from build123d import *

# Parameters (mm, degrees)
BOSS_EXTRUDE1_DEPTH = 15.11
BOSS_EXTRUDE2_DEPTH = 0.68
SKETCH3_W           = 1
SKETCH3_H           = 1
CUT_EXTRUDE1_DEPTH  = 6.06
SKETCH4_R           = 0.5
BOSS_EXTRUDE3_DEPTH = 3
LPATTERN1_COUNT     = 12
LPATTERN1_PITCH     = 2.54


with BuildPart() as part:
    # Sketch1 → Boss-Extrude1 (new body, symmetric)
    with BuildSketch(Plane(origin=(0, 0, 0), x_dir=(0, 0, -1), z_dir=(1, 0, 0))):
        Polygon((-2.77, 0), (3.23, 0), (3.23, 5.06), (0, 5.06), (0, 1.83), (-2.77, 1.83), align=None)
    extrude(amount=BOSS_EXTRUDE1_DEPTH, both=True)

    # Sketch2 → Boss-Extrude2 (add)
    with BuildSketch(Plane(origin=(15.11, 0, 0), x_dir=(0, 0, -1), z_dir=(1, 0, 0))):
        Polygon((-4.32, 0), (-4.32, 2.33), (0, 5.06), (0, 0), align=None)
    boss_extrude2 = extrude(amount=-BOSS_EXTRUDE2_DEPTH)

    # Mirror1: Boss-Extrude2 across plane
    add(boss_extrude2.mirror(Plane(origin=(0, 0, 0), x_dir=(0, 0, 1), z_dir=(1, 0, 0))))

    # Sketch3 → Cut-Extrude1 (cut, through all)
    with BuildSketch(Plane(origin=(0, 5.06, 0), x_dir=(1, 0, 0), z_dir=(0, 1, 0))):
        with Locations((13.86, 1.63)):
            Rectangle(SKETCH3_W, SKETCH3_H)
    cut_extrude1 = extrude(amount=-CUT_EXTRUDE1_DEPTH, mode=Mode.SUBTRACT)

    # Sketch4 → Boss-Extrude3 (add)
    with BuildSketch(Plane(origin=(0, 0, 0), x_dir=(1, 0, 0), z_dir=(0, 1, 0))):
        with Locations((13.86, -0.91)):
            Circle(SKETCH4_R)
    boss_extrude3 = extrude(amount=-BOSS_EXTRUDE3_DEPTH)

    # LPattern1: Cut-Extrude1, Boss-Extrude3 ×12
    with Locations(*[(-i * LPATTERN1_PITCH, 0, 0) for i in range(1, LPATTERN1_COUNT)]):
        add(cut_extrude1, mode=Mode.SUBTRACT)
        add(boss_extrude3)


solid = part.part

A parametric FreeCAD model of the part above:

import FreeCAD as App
import Part
import Sketcher
from FreeCAD import Vector
Q = App.Units.Quantity

doc = App.newDocument("Part")
params = doc.addObject("Spreadsheet::Sheet", "Params")
for row, (alias, value) in enumerate([
    ("sketch1_height", "6 mm"),
    ("sketch1_width", "5.06 mm"),
    ("sketch1_width2", "3.23 mm"),
    ("pad1_length", "30.22 mm"),
    ("sketch2_width", "2.33 mm"),
    ("sketch2_width2", "5.06 mm"),
    ("sketch2_height", "4.32 mm"),
    ("pad2_length", "0.68 mm"),
    ("sketch3_width", "1 mm"),
    ("sketch4_diameter", "1 mm"),
    ("pad3_length", "3 mm"),
    ("linearpattern_pitch", "2.54 mm"),
], start=1):
    params.set(f"A{row}", alias)
    params.set(f"B{row}", "=" + value)
    params.setAlias(f"B{row}", alias)

body = doc.addObject("PartDesign::Body", "Body")

# Sketch on YZ plane
sketch1 = body.newObject("Sketcher::SketchObject", "Sketch")
sketch1.AttachmentSupport = (doc.getObject("YZ_Plane"), [""])
sketch1.MapMode = "FlatFace"
sketch1.addGeometry([
    Part.LineSegment(Vector(0, 2.77, 0), Vector(0, -3.23, 0)),  # 0
    Part.LineSegment(Vector(0, -3.23, 0), Vector(5.06, -3.23, 0)),  # 1
    Part.LineSegment(Vector(5.06, -3.23, 0), Vector(5.06, 0, 0)),  # 2
    Part.LineSegment(Vector(5.06, 0, 0), Vector(1.83, 0, 0)),  # 3
    Part.LineSegment(Vector(1.83, 0, 0), Vector(1.83, 2.77, 0)),  # 4
    Part.LineSegment(Vector(1.83, 2.77, 0), Vector(0, 2.77, 0)),  # 5
], False)
sketch1.addConstraint([
    Sketcher.Constraint("Coincident", 0, 2, 1, 1),
    Sketcher.Constraint("Coincident", 1, 2, 2, 1),
    Sketcher.Constraint("Coincident", 2, 2, 3, 1),
    Sketcher.Constraint("Coincident", 3, 2, 4, 1),
    Sketcher.Constraint("Coincident", 4, 2, 5, 1),
    Sketcher.Constraint("Coincident", 5, 2, 0, 1),
    Sketcher.Constraint("Vertical", 0),
    Sketcher.Constraint("Horizontal", 1),
    Sketcher.Constraint("Vertical", 2),
    Sketcher.Constraint("Horizontal", 3),
    Sketcher.Constraint("Vertical", 4),
    Sketcher.Constraint("Horizontal", 5),
    Sketcher.Constraint("PointOnObject", 0, 2, -2),
    Sketcher.Constraint("PointOnObject", 2, 2, -1),
    Sketcher.Constraint("Equal", 3, 2),
    Sketcher.Constraint("DistanceY", 0, 2, 0, 1, Q("6 mm")),
    Sketcher.Constraint("DistanceX", 1, 1, 1, 2, Q("5.06 mm")),
    Sketcher.Constraint("DistanceX", 3, 2, 3, 1, Q("3.23 mm")),
])
sketch1.setExpression("Constraints[15]", "Params.sketch1_height")
sketch1.setExpression("Constraints[16]", "Params.sketch1_width")
sketch1.setExpression("Constraints[17]", "Params.sketch1_width2")
pad1 = body.newObject("PartDesign::Pad", "Pad")
pad1.Profile = sketch1
pad1.setExpression("Length", "Params.pad1_length")
pad1.Midplane = True

# Sketch on YZ plane
sketch2 = body.newObject("Sketcher::SketchObject", "Sketch001")
sketch2.AttachmentSupport = (doc.getObject("YZ_Plane"), [""])
sketch2.MapMode = "FlatFace"
sketch2.AttachmentOffset = App.Placement(Vector(0, 0, 15.11), App.Rotation())
sketch2.addGeometry([
    Part.LineSegment(Vector(2.33, 4.32, 0), Vector(0, 4.32, 0)),
    Part.LineSegment(Vector(0, 4.32, 0), Vector(0, 0, 0)),
    Part.LineSegment(Vector(0, 0, 0), Vector(5.06, 0, 0)),
    Part.LineSegment(Vector(5.06, 0, 0), Vector(2.33, 4.32, 0)),
], False)
sketch2.addConstraint([
    Sketcher.Constraint("Coincident", 0, 2, 1, 1),
    Sketcher.Constraint("Coincident", 1, 2, 2, 1),
    Sketcher.Constraint("Coincident", 2, 2, 3, 1),
    Sketcher.Constraint("Coincident", 3, 2, 0, 1),
    Sketcher.Constraint("Horizontal", 0),
    Sketcher.Constraint("Vertical", 1),
    Sketcher.Constraint("Horizontal", 2),
    Sketcher.Constraint("Coincident", 1, 2, -1, 1),
    Sketcher.Constraint("DistanceX", 0, 2, 0, 1, Q("2.33 mm")),
    Sketcher.Constraint("DistanceX", 2, 1, 2, 2, Q("5.06 mm")),
    Sketcher.Constraint("DistanceY", 1, 2, 1, 1, Q("4.32 mm")),
])
sketch2.setExpression("Constraints[8]", "Params.sketch2_width")
sketch2.setExpression("Constraints[9]", "Params.sketch2_width2")
sketch2.setExpression("Constraints[10]", "Params.sketch2_height")
pad2 = body.newObject("PartDesign::Pad", "Pad001")
pad2.Profile = sketch2
pad2.setExpression("Length", "Params.pad2_length")
pad2.Reversed = True
doc.recompute()

mirrored = body.newObject("PartDesign::Mirrored", "Mirrored")
mirrored.Originals = [pad2]
mirrored.MirrorPlane = (doc.getObject("YZ_Plane"), [""])
body.Tip = mirrored

# Sketch on XZ plane
sketch3 = body.newObject("Sketcher::SketchObject", "Sketch002")
sketch3.AttachmentSupport = (doc.getObject("XZ_Plane"), [""])
sketch3.MapMode = "FlatFace"
sketch3.AttachmentOffset = App.Placement(Vector(0, 0, -5.06), App.Rotation())
sketch3.addGeometry([
    Part.LineSegment(Vector(13.36, -2.13, 0), Vector(13.36, -1.13, 0)),
    Part.LineSegment(Vector(13.36, -1.13, 0), Vector(14.36, -1.13, 0)),
    Part.LineSegment(Vector(14.36, -1.13, 0), Vector(14.36, -2.13, 0)),
    Part.LineSegment(Vector(14.36, -2.13, 0), Vector(13.36, -2.13, 0)),
], False)
sketch3.addConstraint([
    Sketcher.Constraint("Coincident", 0, 2, 1, 1),
    Sketcher.Constraint("Coincident", 1, 2, 2, 1),
    Sketcher.Constraint("Coincident", 2, 2, 3, 1),
    Sketcher.Constraint("Coincident", 3, 2, 0, 1),
    Sketcher.Constraint("Vertical", 0),
    Sketcher.Constraint("Horizontal", 1),
    Sketcher.Constraint("Vertical", 2),
    Sketcher.Constraint("Horizontal", 3),
    Sketcher.Constraint("Equal", 3, 0),
    Sketcher.Constraint("DistanceX", 1, 1, 1, 2, Q("1 mm")),
    Sketcher.Constraint("DistanceX", -1, 1, 0, 2, Q("13.36 mm")),
    Sketcher.Constraint("DistanceY", 0, 2, -1, 1, Q("1.13 mm")),
])
sketch3.setExpression("Constraints[9]", "Params.sketch3_width")
pocket1 = body.newObject("PartDesign::Pocket", "Pocket")
pocket1.Profile = sketch3
pocket1.Type = "ThroughAll"
pocket1.Reversed = True

# Sketch on XZ plane
sketch4 = body.newObject("Sketcher::SketchObject", "Sketch003")
sketch4.AttachmentSupport = (doc.getObject("XZ_Plane"), [""])
sketch4.MapMode = "FlatFace"
sketch4.addGeometry(Part.Circle(Vector(13.86, 0.91, 0), Vector(0, 0, 1), 0.5), False)
sketch4.addConstraint([
    Sketcher.Constraint("Diameter", 0, Q("1 mm")),
    Sketcher.Constraint("DistanceX", -1, 1, 0, 3, Q("13.86 mm")),
    Sketcher.Constraint("DistanceY", -1, 1, 0, 3, Q("0.91 mm")),
])
sketch4.setExpression("Constraints[0]", "Params.sketch4_diameter")
pad3 = body.newObject("PartDesign::Pad", "Pad002")
pad3.Profile = sketch4
pad3.setExpression("Length", "Params.pad3_length")
doc.recompute()

linearpattern = body.newObject("PartDesign::LinearPattern", "LinearPattern")
linearpattern.Originals = [pocket1, pad3]
linearpattern.Direction = (doc.getObject("X_Axis"), [""])
linearpattern.Mode = "offset"
linearpattern.setExpression("Offset", "Params.linearpattern_pitch")
linearpattern.Occurrences = 12
linearpattern.Reversed = True
body.Tip = linearpattern

doc.recompute()
